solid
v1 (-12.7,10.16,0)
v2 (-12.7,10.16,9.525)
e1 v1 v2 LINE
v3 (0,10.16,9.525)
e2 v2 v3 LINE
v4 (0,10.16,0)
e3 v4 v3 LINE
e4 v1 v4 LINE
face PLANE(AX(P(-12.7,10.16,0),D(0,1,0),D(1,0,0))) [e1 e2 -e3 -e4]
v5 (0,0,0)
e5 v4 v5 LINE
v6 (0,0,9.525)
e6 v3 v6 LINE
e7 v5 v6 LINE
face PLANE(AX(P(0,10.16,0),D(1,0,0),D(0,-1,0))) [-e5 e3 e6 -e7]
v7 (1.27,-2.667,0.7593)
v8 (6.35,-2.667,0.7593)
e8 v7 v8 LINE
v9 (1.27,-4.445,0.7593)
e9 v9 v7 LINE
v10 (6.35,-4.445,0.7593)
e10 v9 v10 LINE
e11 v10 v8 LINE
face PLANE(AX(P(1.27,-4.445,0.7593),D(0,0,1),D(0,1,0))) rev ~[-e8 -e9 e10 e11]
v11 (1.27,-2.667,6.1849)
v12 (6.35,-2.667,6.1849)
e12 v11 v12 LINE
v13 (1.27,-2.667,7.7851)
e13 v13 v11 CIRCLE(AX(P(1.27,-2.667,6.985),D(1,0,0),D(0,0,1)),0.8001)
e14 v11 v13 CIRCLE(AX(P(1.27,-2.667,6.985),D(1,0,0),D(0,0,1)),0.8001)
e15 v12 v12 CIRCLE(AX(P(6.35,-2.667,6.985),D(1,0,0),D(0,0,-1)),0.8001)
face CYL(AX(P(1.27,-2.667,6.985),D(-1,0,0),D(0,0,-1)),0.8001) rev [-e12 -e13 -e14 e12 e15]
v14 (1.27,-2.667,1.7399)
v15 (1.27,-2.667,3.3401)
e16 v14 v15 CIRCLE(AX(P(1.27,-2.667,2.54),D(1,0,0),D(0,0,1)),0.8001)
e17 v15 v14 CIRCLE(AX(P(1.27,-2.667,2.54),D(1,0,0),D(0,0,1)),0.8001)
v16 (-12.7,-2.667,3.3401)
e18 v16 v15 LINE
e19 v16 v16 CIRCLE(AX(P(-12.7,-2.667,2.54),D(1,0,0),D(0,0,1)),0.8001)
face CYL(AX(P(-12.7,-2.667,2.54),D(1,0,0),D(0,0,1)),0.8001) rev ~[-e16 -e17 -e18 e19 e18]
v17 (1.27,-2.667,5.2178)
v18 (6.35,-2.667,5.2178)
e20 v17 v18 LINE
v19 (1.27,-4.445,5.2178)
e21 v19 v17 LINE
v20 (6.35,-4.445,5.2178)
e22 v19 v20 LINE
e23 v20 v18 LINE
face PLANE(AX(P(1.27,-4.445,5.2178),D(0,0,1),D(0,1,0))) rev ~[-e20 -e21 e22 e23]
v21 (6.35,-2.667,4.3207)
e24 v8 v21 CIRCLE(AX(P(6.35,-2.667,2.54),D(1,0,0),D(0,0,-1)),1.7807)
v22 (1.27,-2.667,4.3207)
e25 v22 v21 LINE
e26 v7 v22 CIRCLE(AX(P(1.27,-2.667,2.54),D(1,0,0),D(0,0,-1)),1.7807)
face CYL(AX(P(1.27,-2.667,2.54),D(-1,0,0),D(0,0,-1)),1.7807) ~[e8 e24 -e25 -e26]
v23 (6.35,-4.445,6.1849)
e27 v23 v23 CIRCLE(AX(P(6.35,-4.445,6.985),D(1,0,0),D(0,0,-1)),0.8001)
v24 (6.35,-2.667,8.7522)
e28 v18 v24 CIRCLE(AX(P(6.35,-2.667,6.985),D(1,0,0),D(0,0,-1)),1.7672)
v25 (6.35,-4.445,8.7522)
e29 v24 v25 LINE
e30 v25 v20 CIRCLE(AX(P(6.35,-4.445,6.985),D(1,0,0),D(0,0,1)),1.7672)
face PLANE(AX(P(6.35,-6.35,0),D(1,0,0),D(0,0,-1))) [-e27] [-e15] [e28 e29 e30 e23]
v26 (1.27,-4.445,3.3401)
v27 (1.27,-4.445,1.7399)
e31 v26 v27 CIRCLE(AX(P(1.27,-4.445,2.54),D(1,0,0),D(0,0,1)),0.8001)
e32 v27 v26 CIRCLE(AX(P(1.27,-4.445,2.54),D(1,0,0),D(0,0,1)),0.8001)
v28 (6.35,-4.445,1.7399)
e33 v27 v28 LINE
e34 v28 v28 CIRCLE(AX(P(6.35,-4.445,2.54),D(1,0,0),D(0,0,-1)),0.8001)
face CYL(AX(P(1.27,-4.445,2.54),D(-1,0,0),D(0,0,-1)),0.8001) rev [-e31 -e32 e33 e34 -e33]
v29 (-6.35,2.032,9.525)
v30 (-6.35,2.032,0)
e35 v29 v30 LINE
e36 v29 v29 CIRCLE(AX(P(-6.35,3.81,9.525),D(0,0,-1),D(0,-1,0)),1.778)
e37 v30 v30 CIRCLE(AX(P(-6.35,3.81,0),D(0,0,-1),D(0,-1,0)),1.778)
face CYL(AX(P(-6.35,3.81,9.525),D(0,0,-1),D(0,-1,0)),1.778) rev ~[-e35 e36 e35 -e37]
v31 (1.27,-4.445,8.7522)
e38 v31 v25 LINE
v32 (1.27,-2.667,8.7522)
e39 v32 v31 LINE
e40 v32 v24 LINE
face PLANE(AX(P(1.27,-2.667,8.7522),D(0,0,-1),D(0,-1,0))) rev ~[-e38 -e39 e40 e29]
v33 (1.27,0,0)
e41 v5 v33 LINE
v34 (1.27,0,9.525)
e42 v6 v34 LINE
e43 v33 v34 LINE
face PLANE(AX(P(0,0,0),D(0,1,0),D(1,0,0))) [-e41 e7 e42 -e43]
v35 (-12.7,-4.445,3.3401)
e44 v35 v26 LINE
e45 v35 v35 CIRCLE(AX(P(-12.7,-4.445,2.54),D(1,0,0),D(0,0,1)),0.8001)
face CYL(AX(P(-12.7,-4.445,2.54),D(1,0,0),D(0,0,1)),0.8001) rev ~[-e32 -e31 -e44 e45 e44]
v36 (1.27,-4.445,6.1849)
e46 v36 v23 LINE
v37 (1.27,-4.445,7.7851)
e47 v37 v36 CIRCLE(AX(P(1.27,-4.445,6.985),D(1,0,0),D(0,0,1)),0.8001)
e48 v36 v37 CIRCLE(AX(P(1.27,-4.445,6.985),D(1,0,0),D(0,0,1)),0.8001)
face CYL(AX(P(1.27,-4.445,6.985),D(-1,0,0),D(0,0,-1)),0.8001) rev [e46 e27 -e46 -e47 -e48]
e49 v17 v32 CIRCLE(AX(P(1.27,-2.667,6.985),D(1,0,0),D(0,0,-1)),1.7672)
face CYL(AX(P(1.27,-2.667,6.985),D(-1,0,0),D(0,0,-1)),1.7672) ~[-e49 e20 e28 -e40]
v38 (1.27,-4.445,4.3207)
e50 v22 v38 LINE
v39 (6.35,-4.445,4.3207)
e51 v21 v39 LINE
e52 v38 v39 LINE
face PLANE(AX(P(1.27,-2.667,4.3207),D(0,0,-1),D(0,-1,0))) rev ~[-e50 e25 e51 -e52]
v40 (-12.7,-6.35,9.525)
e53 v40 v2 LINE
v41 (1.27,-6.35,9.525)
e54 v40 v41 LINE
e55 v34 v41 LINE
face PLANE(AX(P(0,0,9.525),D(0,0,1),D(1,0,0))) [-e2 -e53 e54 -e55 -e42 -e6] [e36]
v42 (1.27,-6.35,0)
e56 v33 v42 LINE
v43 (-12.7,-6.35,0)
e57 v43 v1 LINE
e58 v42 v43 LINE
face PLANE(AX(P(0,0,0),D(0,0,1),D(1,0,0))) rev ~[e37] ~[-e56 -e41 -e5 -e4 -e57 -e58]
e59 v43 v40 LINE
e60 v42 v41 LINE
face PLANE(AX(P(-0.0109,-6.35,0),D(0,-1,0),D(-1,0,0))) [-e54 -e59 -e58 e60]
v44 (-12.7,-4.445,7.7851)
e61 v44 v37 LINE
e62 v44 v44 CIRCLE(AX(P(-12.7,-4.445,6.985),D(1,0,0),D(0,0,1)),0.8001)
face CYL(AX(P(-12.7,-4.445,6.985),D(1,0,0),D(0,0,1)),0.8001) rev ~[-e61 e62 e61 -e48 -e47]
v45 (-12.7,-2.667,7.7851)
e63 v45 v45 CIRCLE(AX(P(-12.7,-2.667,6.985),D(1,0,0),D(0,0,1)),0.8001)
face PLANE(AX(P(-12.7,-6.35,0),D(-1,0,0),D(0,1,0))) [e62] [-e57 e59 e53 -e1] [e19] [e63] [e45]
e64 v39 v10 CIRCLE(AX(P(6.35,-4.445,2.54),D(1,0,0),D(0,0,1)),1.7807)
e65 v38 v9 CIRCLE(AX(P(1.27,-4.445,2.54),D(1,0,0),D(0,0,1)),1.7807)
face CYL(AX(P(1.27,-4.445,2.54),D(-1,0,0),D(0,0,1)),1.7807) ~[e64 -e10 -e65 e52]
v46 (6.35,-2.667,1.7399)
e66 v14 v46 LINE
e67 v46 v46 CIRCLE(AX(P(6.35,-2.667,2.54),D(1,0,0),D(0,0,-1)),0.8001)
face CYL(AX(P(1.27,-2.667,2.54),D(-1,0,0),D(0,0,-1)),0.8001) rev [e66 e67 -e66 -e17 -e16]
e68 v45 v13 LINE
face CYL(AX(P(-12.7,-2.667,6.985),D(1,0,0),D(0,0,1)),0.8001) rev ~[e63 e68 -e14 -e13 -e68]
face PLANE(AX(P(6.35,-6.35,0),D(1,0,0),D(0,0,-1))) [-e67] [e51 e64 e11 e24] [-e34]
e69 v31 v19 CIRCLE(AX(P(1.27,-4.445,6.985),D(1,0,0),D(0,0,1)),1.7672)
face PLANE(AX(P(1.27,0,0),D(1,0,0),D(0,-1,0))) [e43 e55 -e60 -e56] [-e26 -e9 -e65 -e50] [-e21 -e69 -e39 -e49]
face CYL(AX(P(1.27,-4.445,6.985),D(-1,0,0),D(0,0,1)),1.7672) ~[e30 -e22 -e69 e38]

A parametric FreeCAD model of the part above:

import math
import FreeCAD as App
import Part
import Sketcher
Q = App.Units.Quantity

doc = App.newDocument("Part")
body = doc.addObject("PartDesign::Body", "Body")

# Sketch on XY plane
sketch1 = body.newObject("Sketcher::SketchObject", "Sketch")
sketch1.AttachmentSupport = (doc.getObject("XY_Plane"), [""])
sketch1.MapMode = "FlatFace"
sketch1.addGeometry(Part.LineSegment(App.Vector(0, 10.2, 0), App.Vector(-12.7, 10.2, 0)), False)
sketch1.addGeometry(Part.LineSegment(App.Vector(-12.7, 10.2, 0), App.Vector(-12.7, -6.3, 0)), False)
sketch1.addGeometry(Part.LineSegment(App.Vector(-12.7, -6.3, 0), App.Vector(1.3, -6.3, 0)), False)
sketch1.addGeometry(Part.LineSegment(App.Vector(1.3, -6.3, 0), App.Vector(1.3, 0, 0)), False)
sketch1.addGeometry(Part.LineSegment(App.Vector(1.3, 0, 0), App.Vector(0, 0, 0)), False)
sketch1.addGeometry(Part.LineSegment(App.Vector(0, 0, 0), App.Vector(0, 10.2, 0)), False)
sketch1.addConstraint(Sketcher.Constraint("Coincident", 0, 2, 1, 1))
sketch1.addConstraint(Sketcher.Constraint("Coincident", 1, 2, 2, 1))
sketch1.addConstraint(Sketcher.Constraint("Coincident", 2, 2, 3, 1))
sketch1.addConstraint(Sketcher.Constraint("Coincident", 3, 2, 4, 1))
sketch1.addConstraint(Sketcher.Constraint("Coincident", 4, 2, 5, 1))
sketch1.addConstraint(Sketcher.Constraint("Coincident", 5, 2, 0, 1))
sketch1.addConstraint(Sketcher.Constraint("Horizontal", 0))
sketch1.addConstraint(Sketcher.Constraint("Vertical", 1))
sketch1.addConstraint(Sketcher.Constraint("Horizontal", 2))
sketch1.addConstraint(Sketcher.Constraint("Vertical", 3))
sketch1.addConstraint(Sketcher.Constraint("Horizontal", 4))
sketch1.addConstraint(Sketcher.Constraint("Vertical", 5))
sketch1.addConstraint(Sketcher.Constraint("Coincident", 4, 2, -1, 1))
sketch1.addConstraint(Sketcher.Constraint("DistanceX", 0, 2, 0, 1, Q("0.5 in")))
sketch1.addConstraint(Sketcher.Constraint("DistanceX", 4, 2, 4, 1, Q("0.05 in")))
sketch1.addConstraint(Sketcher.Constraint("DistanceY", 1, 2, 1, 1, Q("0.65 in")))
sketch1.addConstraint(Sketcher.Constraint("DistanceY", 3, 1, 3, 2, Q("0.25 in")))
pad1 = body.newObject("PartDesign::Pad", "Pad")
pad1.Profile = sketch1
pad1.Length = Q("0.375 in")

# Sketch on XY plane
sketch2 = body.newObject("Sketcher::SketchObject", "Sketch001")
sketch2.AttachmentSupport = (doc.getObject("XY_Plane"), [""])
sketch2.MapMode = "FlatFace"
sketch2.AttachmentOffset = App.Placement(App.Vector(0, 0, 0.375 * 25.4), App.Rotation())
sketch2.addGeometry(Part.Circle(App.Vector(-6.3, 3.8, 0), App.Vector(0, 0, 1), 1.8), False)
sketch2.addConstraint(Sketcher.Constraint("Diameter", 0, Q("0.14 in")))
sketch2.addConstraint(Sketcher.Constraint("DistanceX", 0, 3, -1, 1, Q("0.25 in")))
sketch2.addConstraint(Sketcher.Constraint("DistanceY", -1, 1, 0, 3, Q("0.15 in")))
doc.recompute()
hole = body.newObject("PartDesign::Hole", "Hole")
hole.Profile = sketch2
hole.ThreadType = "None"
hole.Diameter = Q("0.14 in")
hole.DepthType = "ThroughAll"

# Sketch on YZ plane
sketch3 = body.newObject("Sketcher::SketchObject", "Sketch002")
sketch3.AttachmentSupport = (doc.getObject("YZ_Plane"), [""])
sketch3.MapMode = "FlatFace"
sketch3.AttachmentOffset = App.Placement(App.Vector(0, 0, -0.5 * 25.4), App.Rotation())
sketch3.addGeometry(Part.Circle(App.Vector(-4.4, 2.5, 0), App.Vector(0, 0, 1), 0.8), False)
sketch3.addConstraint(Sketcher.Constraint("Diameter", 0, Q("0.063 in")))
sketch3.addConstraint(Sketcher.Constraint("DistanceY", -1, 1, 0, 3, Q("0.1 in")))
sketch3.addConstraint(Sketcher.Constraint("DistanceX", 0, 3, -1, 1, Q("0.175 in")))
doc.recompute()
hole2 = body.newObject("PartDesign::Hole", "Hole001")
hole2.Profile = sketch3
hole2.ThreadType = "None"
hole2.Diameter = Q("0.063 in")
hole2.DepthType = "ThroughAll"
hole2.Reversed = True

# Sketch on YZ plane
sketch4 = body.newObject("Sketcher::SketchObject", "Sketch003")
sketch4.AttachmentSupport = (doc.getObject("YZ_Plane"), [""])
sketch4.MapMode = "FlatFace"
sketch4.AttachmentOffset = App.Placement(App.Vector(0, 0, -0.5 * 25.4), App.Rotation())
sketch4.addGeometry(Part.Circle(App.Vector(-2.7, 2.5, 0), App.Vector(0, 0, 1), 0.8), False)
sketch4.addConstraint(Sketcher.Constraint("Diameter", 0, Q("0.063 in")))
sketch4.addConstraint(Sketcher.Constraint("DistanceY", -1, 1, 0, 3, Q("0.1 in")))
sketch4.addConstraint(Sketcher.Constraint("DistanceX", 0, 3, -1, 1, Q("0.105 in")))
doc.recompute()
hole3 = body.newObject("PartDesign::Hole", "Hole002")
hole3.Profile = sketch4
hole3.ThreadType = "None"
hole3.Diameter = Q("0.063 in")
hole3.DepthType = "Dimension"
hole3.Depth = Q("1 in")
hole3.DrillPoint = "Angled"
hole3.DrillPointAngle = 118
hole3.Reversed = True

# Sketch on YZ plane
sketch5 = body.newObject("Sketcher::SketchObject", "Sketch004")
sketch5.AttachmentSupport = (doc.getObject("YZ_Plane"), [""])
sketch5.MapMode = "FlatFace"
sketch5.AttachmentOffset = App.Placement(App.Vector(0, 0, -0.5 * 25.4), App.Rotation())
sketch5.addGeometry(Part.Circle(App.Vector(-2.7, 7, 0), App.Vector(0, 0, 1), 0.8), False)
sketch5.addConstraint(Sketcher.Constraint("Diameter", 0, Q("0.063 in")))
sketch5.addConstraint(Sketcher.Constraint("DistanceX", 0, 3, -1, 1, Q("0.105 in")))
sketch5.addConstraint(Sketcher.Constraint("DistanceY", -1, 1, 0, 3, Q("0.275 in")))
doc.recompute()
hole4 = body.newObject("PartDesign::Hole", "Hole003")
hole4.Profile = sketch5
hole4.ThreadType = "None"
hole4.Diameter = Q("0.063 in")
hole4.DepthType = "ThroughAll"
hole4.Reversed = True

# Sketch on YZ plane
sketch6 = body.newObject("Sketcher::SketchObject", "Sketch005")
sketch6.AttachmentSupport = (doc.getObject("YZ_Plane"), [""])
sketch6.MapMode = "FlatFace"
sketch6.AttachmentOffset = App.Placement(App.Vector(0, 0, -0.5 * 25.4), App.Rotation())
sketch6.addGeometry(Part.Circle(App.Vector(-4.4, 7, 0), App.Vector(0, 0, 1), 0.8), False)
sketch6.addConstraint(Sketcher.Constraint("Diameter", 0, Q("0.063 in")))
sketch6.addConstraint(Sketcher.Constraint("DistanceX", 0, 3, -1, 1, Q("0.175 in")))
sketch6.addConstraint(Sketcher.Constraint("DistanceY", -1, 1, 0, 3, Q("0.275 in")))
doc.recompute()
hole5 = body.newObject("PartDesign::Hole", "Hole004")
hole5.Profile = sketch6
hole5.ThreadType = "None"
hole5.Diameter = Q("0.063 in")
hole5.DepthType = "ThroughAll"
hole5.Reversed = True

# Sketch on YZ plane
sketch7 = body.newObject("Sketcher::SketchObject", "Sketch006")
sketch7.AttachmentSupport = (doc.getObject("YZ_Plane"), [""])
sketch7.MapMode = "FlatFace"
sketch7.AttachmentOffset = App.Placement(App.Vector(0, 0, 0.05 * 25.4), App.Rotation())
sketch7.addGeometry(Part.LineSegment(App.Vector(-4.4, 5.2, 0), App.Vector(-2.7, 5.2, 0)), False)
sketch7.addGeometry(Part.ArcOfCircle(Part.Circle(App.Vector(-2.7, 7, 0), App.Vector(0, 0, 1), 1.8), math.radians(-90), math.radians(90)), False)
sketch7.addGeometry(Part.LineSegment(App.Vector(-2.7, 8.8, 0), App.Vector(-4.4, 8.8, 0)), False)
sketch7.addGeometry(Part.ArcOfCircle(Part.Circle(App.Vector(-4.4, 7, 0), App.Vector(0, 0, 1), 1.8), math.radians(90), math.radians(270)), False)
sketch7.addGeometry(Part.Circle(App.Vector(-4.4, 7, 0), App.Vector(0, 0, 1), 0.8), False)
sketch7.addGeometry(Part.Circle(App.Vector(-2.7, 7, 0), App.Vector(0, 0, 1), 0.8), False)
sketch7.addGeometry(Part.ArcOfCircle(Part.Circle(App.Vector(-2.7, 2.5, 0), App.Vector(0, 0, 1), 1.8), math.radians(-90), math.radians(90)), False)
sketch7.addGeometry(Part.LineSegment(App.Vector(-2.7, 4.3, 0), App.Vector(-4.4, 4.3, 0)), False)
sketch7.addGeometry(Part.ArcOfCircle(Part.Circle(App.Vector(-4.4, 2.5, 0), App.Vector(0, 0, 1), 1.8), math.radians(90), math.radians(270)), False)
sketch7.addGeometry(Part.LineSegment(App.Vector(-4.4, 0.8, 0), App.Vector(-2.7, 0.8, 0)), False)
sketch7.addGeometry(Part.Circle(App.Vector(-4.4, 2.5, 0), App.Vector(0, 0, 1), 0.8), False)
sketch7.addGeometry(Part.Circle(App.Vector(-2.7, 2.5, 0), App.Vector(0, 0, 1), 0.8), False)
sketch7.addConstraint(Sketcher.Constraint("Tangent", 0, 2, 1, 1))
sketch7.addConstraint(Sketcher.Constraint("Tangent", 1, 2, 2, 1))
sketch7.addConstraint(Sketcher.Constraint("Tangent", 2, 2, 3, 1))
sketch7.addConstraint(Sketcher.Constraint("Tangent", 3, 2, 0, 1))
sketch7.addConstraint(Sketcher.Constraint("Tangent", 6, 2, 7, 1))
sketch7.addConstraint(Sketcher.Constraint("Tangent", 7, 2, 8, 1))
sketch7.addConstraint(Sketcher.Constraint("Tangent", 8, 2, 9, 1))
sketch7.addConstraint(Sketcher.Constraint("Tangent", 9, 2, 6, 1))
sketch7.addConstraint(Sketcher.Constraint("Horizontal", 0))
sketch7.addConstraint(Sketcher.Constraint("Horizontal", 2))
sketch7.addConstraint(Sketcher.Constraint("Horizontal", 7))
sketch7.addConstraint(Sketcher.Constraint("Horizontal", 9))
sketch7.addConstraint(Sketcher.Constraint("Coincident", 4, 3, 3, 3))
sketch7.addConstraint(Sketcher.Constraint("Coincident", 5, 3, 1, 3))
sketch7.addConstraint(Sketcher.Constraint("Coincident", 10, 3, 8, 3))
sketch7.addConstraint(Sketcher.Constraint("Coincident", 11, 3, 6, 3))
sketch7.addConstraint(Sketcher.Constraint("Equal", 4, 5))
sketch7.addConstraint(Sketcher.Constraint("Equal", 5, 10))
sketch7.addConstraint(Sketcher.Constraint("Equal", 10, 11))
sketch7.addConstraint(Sketcher.Constraint("Vertical", 5, 3, 6, 3))
sketch7.addConstraint(Sketcher.Constraint("Vertical", 4, 3, 8, 3))
sketch7.addConstraint(Sketcher.Constraint("Diameter", 4, Q("0.063 in")))
sketch7.addConstraint(Sketcher.Constraint("DistanceX", 0, 1, 0, 2, Q("0.07 in")))
sketch7.addConstraint(Sketcher.Constraint("DistanceY", -1, 1, 6, 3, Q("0.1 in")))
sketch7.addConstraint(Sketcher.Constraint("Radius", 6, Q("0.0701 in")))
sketch7.addConstraint(Sketcher.Constraint("Radius", 1, Q("1.7672 mm")))
sketch7.addConstraint(Sketcher.Constraint("DistanceX", 1, 3, -1, 1, Q("0.105 in")))
sketch7.addConstraint(Sketcher.Constraint("DistanceY", -1, 1, 1, 3, Q("0.275 in")))
pad2 = body.newObject("PartDesign::Pad", "Pad001")
pad2.Profile = sketch7
pad2.Length = Q("0.2 in")

doc.recompute()
